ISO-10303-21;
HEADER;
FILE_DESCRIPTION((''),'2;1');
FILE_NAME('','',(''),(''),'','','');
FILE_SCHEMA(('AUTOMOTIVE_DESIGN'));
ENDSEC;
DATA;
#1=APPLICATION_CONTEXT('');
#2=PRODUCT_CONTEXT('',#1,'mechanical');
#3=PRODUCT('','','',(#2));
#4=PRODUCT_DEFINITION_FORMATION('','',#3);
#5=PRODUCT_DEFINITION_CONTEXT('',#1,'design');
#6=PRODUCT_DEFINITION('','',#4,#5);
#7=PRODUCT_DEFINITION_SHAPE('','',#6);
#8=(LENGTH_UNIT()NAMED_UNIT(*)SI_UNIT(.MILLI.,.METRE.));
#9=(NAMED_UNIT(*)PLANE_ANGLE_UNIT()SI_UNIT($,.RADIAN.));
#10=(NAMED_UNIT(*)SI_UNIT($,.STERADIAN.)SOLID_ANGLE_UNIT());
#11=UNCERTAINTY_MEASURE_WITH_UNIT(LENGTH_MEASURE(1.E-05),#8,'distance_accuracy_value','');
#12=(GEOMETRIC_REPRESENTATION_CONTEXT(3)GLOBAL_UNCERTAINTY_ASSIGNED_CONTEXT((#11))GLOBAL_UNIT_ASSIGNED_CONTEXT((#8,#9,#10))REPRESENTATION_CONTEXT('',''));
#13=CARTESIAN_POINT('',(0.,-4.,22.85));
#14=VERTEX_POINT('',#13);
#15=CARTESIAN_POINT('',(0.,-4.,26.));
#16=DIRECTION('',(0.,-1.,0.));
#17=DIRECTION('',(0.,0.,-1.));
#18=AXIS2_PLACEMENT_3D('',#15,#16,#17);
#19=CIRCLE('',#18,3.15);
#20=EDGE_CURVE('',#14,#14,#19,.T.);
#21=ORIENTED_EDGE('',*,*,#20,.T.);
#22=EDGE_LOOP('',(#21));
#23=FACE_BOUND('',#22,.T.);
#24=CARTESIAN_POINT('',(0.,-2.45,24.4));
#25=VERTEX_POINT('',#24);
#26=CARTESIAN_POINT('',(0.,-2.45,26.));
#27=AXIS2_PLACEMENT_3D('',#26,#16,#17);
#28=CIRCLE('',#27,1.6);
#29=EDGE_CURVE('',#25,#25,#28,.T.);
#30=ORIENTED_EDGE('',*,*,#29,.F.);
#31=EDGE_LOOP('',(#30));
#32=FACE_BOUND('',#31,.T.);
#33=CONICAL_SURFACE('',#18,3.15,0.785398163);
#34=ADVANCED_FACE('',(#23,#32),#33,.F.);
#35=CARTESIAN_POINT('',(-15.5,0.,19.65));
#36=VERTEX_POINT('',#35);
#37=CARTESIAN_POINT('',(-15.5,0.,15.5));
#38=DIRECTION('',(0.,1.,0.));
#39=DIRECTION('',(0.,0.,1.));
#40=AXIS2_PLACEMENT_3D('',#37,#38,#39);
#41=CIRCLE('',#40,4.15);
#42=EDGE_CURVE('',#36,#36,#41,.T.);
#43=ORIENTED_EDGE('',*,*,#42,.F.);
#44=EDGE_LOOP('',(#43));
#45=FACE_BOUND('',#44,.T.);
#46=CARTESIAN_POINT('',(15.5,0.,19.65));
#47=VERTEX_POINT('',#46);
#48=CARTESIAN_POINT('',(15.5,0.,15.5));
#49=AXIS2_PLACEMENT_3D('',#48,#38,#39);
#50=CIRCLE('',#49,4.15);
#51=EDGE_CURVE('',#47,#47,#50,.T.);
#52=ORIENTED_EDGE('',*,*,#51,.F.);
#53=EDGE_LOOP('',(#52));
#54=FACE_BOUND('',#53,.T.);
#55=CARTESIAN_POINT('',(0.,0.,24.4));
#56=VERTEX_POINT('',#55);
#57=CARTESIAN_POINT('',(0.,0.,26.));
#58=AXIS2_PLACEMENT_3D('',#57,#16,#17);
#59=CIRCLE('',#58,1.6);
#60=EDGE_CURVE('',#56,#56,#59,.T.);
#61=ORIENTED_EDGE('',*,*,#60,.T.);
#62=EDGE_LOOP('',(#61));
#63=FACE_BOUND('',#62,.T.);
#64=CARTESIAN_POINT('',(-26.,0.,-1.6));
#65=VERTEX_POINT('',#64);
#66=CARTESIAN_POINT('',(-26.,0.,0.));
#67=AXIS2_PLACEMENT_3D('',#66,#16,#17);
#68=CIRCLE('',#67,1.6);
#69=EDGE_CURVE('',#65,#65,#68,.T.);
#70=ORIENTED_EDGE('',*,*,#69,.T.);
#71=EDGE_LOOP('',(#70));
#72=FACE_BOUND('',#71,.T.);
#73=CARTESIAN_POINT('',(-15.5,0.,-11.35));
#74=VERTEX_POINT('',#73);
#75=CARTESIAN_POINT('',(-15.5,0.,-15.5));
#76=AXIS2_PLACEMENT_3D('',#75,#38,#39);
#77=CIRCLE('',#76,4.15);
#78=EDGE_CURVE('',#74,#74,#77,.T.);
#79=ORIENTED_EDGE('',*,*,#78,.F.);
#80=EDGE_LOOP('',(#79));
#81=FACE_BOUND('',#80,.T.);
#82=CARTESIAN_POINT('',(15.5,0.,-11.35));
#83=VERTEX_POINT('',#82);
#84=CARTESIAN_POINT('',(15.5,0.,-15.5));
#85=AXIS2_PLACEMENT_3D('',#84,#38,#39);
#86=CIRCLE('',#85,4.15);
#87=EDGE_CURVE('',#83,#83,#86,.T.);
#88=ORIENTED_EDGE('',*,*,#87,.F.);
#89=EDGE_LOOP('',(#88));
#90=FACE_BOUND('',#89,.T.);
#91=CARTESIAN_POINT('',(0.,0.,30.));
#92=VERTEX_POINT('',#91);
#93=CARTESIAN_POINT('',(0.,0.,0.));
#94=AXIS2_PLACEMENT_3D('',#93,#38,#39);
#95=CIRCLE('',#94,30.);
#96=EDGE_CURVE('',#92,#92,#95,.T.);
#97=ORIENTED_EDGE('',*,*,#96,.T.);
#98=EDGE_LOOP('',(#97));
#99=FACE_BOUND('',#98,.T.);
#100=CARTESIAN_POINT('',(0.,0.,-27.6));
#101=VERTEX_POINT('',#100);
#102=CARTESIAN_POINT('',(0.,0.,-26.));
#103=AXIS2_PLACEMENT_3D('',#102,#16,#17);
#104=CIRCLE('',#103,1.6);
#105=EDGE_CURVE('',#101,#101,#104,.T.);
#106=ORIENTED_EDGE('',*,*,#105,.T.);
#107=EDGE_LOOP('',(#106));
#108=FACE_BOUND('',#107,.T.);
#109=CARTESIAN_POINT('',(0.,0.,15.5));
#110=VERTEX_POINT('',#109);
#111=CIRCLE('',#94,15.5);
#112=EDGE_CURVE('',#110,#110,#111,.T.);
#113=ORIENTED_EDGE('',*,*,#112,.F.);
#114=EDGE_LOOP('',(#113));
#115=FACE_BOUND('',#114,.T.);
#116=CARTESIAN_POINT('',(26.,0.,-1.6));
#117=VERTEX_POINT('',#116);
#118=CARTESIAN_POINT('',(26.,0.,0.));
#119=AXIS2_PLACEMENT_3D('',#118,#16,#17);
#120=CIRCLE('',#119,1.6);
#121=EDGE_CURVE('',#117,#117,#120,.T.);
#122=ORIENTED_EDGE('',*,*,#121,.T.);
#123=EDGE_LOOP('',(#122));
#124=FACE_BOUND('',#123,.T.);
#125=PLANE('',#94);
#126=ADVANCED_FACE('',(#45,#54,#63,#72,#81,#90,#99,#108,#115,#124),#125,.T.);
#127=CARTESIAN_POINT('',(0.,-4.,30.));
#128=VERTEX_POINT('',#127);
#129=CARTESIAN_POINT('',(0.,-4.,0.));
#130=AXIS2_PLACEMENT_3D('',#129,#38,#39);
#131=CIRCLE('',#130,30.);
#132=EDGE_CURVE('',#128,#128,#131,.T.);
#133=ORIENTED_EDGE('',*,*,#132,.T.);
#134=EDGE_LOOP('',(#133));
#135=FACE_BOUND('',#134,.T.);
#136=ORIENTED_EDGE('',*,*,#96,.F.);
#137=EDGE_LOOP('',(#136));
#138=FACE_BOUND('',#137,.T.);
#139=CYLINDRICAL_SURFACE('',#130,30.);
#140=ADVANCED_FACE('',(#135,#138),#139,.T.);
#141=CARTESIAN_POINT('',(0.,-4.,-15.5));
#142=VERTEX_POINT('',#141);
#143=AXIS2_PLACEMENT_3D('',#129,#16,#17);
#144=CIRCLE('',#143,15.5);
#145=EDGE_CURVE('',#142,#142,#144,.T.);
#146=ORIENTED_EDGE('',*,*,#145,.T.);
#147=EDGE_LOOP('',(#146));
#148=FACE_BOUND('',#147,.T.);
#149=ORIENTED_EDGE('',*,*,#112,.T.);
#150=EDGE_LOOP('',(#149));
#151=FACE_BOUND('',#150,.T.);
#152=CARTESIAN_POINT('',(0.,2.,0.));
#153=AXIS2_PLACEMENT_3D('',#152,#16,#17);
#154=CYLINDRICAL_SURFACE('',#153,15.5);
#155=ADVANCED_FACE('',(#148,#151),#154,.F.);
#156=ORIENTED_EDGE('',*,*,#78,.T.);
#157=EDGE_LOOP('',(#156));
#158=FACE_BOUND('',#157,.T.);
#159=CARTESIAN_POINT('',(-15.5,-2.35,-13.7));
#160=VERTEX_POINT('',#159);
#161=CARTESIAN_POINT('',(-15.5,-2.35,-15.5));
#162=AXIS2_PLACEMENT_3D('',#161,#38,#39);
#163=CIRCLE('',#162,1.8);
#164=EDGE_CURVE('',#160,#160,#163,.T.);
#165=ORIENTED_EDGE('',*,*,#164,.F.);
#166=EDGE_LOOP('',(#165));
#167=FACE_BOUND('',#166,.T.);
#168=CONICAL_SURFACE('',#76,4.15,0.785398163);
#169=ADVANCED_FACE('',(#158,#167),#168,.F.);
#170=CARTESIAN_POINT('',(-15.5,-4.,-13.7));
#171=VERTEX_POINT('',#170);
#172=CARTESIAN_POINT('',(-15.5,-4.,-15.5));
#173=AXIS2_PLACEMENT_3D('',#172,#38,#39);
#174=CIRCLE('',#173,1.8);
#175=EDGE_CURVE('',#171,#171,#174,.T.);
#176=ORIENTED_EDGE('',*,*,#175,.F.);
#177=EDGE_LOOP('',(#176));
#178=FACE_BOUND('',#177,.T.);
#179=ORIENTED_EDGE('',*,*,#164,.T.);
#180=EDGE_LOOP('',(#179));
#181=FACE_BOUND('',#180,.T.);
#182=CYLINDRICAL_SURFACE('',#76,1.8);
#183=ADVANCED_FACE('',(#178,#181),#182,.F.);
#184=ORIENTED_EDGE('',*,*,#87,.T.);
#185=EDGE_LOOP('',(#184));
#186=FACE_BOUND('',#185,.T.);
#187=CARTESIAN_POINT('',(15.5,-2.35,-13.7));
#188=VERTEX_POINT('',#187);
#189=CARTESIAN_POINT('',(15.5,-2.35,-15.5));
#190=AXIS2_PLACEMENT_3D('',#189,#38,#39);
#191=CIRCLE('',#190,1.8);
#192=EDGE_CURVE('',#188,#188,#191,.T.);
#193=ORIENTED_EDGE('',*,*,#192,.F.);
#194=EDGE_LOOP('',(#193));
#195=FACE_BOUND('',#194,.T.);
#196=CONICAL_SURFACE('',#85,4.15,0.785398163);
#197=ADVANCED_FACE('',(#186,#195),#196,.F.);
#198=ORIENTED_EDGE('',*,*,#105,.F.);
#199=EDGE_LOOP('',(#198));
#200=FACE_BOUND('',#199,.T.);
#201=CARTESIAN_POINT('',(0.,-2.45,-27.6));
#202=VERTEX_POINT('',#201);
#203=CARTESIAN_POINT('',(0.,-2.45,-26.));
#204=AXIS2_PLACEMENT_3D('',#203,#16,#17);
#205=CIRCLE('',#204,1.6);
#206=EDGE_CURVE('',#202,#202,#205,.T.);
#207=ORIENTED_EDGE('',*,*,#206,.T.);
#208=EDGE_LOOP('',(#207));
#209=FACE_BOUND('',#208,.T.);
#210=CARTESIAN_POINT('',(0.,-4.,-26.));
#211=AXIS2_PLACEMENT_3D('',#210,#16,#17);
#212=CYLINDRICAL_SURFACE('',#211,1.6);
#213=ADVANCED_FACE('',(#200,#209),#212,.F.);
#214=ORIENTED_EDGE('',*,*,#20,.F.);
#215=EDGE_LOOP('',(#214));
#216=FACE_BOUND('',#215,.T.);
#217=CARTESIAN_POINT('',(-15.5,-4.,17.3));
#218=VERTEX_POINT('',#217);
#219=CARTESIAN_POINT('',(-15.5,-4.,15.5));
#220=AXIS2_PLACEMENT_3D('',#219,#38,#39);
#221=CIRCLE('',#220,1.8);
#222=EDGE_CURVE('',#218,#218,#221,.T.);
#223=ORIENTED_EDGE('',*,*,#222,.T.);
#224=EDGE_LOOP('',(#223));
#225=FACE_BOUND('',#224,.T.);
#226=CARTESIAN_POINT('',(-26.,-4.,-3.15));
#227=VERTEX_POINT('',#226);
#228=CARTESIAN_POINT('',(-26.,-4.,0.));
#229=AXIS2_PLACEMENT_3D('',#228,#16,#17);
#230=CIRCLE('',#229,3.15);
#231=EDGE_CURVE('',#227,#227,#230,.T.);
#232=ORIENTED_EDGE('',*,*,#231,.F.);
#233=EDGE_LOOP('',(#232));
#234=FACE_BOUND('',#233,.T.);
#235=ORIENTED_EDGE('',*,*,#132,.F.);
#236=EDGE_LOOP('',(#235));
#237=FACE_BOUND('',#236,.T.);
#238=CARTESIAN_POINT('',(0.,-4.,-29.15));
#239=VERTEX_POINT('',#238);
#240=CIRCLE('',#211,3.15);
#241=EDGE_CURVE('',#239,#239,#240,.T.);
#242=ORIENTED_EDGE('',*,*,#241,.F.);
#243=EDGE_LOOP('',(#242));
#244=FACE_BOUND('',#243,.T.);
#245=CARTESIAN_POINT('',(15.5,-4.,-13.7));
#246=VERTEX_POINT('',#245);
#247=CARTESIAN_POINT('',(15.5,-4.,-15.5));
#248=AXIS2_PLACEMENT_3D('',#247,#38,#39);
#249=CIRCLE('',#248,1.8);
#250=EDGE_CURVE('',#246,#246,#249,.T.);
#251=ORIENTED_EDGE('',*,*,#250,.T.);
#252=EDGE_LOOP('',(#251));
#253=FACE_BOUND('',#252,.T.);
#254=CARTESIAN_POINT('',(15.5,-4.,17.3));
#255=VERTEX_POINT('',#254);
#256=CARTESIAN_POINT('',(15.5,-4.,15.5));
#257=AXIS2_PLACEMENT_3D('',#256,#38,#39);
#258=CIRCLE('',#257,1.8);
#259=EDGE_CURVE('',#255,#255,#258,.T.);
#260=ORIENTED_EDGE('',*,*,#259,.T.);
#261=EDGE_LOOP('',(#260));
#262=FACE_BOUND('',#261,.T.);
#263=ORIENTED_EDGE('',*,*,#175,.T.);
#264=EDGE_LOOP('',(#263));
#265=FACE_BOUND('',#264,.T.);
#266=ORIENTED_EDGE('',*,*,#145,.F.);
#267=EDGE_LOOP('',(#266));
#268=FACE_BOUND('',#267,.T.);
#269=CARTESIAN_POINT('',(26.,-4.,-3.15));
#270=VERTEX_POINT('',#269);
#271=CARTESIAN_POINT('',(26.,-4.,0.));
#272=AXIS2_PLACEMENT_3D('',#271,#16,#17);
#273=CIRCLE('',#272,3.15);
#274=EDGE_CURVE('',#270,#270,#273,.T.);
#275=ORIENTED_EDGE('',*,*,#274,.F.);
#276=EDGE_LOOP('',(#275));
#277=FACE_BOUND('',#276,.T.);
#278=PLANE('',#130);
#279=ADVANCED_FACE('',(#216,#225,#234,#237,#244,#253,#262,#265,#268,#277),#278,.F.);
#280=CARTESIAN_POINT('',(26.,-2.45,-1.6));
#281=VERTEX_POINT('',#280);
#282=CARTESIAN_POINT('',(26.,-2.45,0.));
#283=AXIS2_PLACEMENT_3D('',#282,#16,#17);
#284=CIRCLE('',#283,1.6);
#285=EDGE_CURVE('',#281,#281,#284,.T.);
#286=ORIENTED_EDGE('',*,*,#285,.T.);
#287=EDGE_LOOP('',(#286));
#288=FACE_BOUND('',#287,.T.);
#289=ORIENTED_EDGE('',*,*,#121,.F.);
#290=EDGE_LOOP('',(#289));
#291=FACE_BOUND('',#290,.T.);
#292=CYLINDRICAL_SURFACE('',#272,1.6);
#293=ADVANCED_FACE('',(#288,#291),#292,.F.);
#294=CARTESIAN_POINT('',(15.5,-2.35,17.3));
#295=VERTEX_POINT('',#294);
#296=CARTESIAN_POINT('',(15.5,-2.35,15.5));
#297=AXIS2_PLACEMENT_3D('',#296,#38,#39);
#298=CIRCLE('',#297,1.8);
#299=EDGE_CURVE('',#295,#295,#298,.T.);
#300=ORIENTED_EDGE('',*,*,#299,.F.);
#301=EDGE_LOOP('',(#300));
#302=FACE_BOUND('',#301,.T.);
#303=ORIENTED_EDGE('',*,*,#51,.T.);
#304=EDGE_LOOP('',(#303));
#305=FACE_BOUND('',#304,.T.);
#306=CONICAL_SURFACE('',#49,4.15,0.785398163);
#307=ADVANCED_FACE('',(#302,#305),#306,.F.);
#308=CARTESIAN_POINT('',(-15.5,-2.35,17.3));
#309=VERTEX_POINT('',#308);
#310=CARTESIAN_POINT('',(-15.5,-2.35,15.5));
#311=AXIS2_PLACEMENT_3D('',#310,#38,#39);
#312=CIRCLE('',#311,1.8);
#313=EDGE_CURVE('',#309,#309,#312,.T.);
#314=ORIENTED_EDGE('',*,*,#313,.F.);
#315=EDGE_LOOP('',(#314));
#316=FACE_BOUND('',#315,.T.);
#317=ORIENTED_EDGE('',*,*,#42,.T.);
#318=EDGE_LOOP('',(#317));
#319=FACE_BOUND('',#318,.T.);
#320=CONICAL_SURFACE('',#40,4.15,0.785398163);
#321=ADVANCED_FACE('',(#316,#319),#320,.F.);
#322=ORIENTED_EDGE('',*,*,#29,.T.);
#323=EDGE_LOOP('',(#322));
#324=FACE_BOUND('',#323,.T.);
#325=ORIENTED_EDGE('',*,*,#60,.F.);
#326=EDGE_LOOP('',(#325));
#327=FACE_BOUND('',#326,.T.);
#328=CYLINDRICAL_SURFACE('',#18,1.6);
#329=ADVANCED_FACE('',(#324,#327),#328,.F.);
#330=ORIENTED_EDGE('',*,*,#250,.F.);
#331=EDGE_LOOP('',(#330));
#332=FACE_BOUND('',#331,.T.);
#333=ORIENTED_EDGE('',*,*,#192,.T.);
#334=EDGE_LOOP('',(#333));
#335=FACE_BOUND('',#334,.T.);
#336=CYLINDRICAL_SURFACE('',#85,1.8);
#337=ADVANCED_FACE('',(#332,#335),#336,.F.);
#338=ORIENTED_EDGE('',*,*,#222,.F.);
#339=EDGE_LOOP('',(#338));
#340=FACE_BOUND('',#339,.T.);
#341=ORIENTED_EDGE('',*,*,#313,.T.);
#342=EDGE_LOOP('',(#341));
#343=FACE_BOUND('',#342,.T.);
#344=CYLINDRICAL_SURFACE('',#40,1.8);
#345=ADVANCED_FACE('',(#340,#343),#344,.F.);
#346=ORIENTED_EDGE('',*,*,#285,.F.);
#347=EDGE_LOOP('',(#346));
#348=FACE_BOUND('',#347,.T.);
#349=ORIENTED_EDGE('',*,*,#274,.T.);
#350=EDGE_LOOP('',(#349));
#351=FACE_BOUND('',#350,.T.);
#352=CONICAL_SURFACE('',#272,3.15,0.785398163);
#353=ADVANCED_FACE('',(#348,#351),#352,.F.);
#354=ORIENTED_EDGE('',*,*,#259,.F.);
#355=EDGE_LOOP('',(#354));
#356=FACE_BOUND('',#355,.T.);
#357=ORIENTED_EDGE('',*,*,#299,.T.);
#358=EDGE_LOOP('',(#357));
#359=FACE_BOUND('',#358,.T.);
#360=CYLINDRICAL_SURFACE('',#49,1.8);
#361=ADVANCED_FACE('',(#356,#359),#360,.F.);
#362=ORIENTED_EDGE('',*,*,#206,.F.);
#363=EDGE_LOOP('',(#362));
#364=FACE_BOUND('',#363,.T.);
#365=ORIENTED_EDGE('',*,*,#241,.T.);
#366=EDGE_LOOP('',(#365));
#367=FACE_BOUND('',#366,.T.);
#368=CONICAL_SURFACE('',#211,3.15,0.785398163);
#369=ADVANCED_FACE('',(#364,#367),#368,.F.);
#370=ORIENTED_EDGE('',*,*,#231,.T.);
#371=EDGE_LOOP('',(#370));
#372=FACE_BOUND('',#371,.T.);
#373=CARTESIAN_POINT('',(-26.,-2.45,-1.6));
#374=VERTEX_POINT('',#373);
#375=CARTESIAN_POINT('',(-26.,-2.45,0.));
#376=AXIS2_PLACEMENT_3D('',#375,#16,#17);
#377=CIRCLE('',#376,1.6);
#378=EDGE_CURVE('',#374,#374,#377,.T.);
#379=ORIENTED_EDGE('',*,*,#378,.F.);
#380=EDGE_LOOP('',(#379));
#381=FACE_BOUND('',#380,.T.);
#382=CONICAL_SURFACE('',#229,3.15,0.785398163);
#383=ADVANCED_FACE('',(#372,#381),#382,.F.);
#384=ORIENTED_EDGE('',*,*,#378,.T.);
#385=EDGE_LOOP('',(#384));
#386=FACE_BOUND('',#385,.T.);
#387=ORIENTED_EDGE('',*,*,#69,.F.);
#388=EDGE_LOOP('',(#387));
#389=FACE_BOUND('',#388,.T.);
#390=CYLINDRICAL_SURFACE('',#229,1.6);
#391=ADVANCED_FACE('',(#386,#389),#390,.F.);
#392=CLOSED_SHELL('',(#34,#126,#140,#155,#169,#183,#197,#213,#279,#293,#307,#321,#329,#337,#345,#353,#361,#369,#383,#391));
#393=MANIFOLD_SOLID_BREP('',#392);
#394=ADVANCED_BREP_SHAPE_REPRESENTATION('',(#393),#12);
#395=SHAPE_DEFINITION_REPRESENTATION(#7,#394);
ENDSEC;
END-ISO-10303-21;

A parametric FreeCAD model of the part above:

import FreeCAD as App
import Part
import Sketcher
from FreeCAD import Vector
Q = App.Units.Quantity

doc = App.newDocument("Part")
body = doc.addObject("PartDesign::Body", "Body")

# Sketch on XZ plane
sketch1 = doc.addObject("Sketcher::SketchObject", "Sketch")
body.addObject(sketch1)
sketch1.AttachmentSupport = (doc.XZ_Plane, [""])
sketch1.MapMode = "FlatFace"
sketch1.addGeometry(Part.Circle(Vector(0, 0, 0), Vector(0, 0, 1), 30), False)
sketch1.addConstraint(Sketcher.Constraint("Coincident", 0, 3, -1, 1))
sketch1.addConstraint(Sketcher.Constraint("Diameter", 0, Q("60 mm")))
pad1 = doc.addObject("PartDesign::Pad", "Pad")
body.addObject(pad1)
pad1.Profile = sketch1
pad1.Length = 4

# Sketch on XZ plane
sketch2 = doc.addObject("Sketcher::SketchObject", "Sketch001")
body.addObject(sketch2)
sketch2.AttachmentSupport = (doc.XZ_Plane, [""])
sketch2.MapMode = "FlatFace"
sketch2.AttachmentOffset = App.Placement(Vector(0, 0, 4), App.Rotation())
sketch2.addGeometry(Part.Circle(Vector(0, 0, 0), Vector(0, 0, 1), 16), False)
sketch2.addConstraint(Sketcher.Constraint("Coincident", 0, 3, -1, 1))
sketch2.addConstraint(Sketcher.Constraint("Diameter", 0, Q("31 mm")))
pocket1 = doc.addObject("PartDesign::Pocket", "Pocket")
body.addObject(pocket1)
pocket1.Profile = sketch2
pocket1.Length = 6

# Sketch on YZ plane
sketch3 = doc.addObject("Sketcher::SketchObject", "Sketch002")
body.addObject(sketch3)
sketch3.AttachmentSupport = (doc.YZ_Plane, [""])
sketch3.MapMode = "FlatFace"
sketch3.AttachmentOffset = App.Placement(Vector(0, 0, 15.5), App.Rotation())
sketch3.addGeometry(Part.LineSegment(Vector(-4, 15.5, 0), Vector(0, 15.5, 0)), False)
sketch3.addGeometry(Part.LineSegment(Vector(0, 15.5, 0), Vector(0, 19.6, 0)), False)
sketch3.addGeometry(Part.LineSegment(Vector(0, 19.6, 0), Vector(-2.4, 17.3, 0)), False)
sketch3.addGeometry(Part.LineSegment(Vector(-2.4, 17.3, 0), Vector(-4, 17.3, 0)), False)
sketch3.addGeometry(Part.LineSegment(Vector(-4, 17.3, 0), Vector(-4, 15.5, 0)), False)
sketch3.addGeometry(Part.LineSegment(Vector(0, 15.5, 0), Vector(-4, 15.5, 0)), True)  # axis
sketch3.addConstraint(Sketcher.Constraint("Coincident", 0, 2, 1, 1))
sketch3.addConstraint(Sketcher.Constraint("Coincident", 1, 2, 2, 1))
sketch3.addConstraint(Sketcher.Constraint("Coincident", 2, 2, 3, 1))
sketch3.addConstraint(Sketcher.Constraint("Coincident", 3, 2, 4, 1))
sketch3.addConstraint(Sketcher.Constraint("Coincident", 4, 2, 0, 1))
sketch3.addConstraint(Sketcher.Constraint("Horizontal", 0))
sketch3.addConstraint(Sketcher.Constraint("Vertical", 1))
sketch3.addConstraint(Sketcher.Constraint("Horizontal", 3))
sketch3.addConstraint(Sketcher.Constraint("Vertical", 4))
sketch3.addConstraint(Sketcher.Constraint("Horizontal", 5))
sketch3.addConstraint(Sketcher.Constraint("Coincident", 5, 1, 0, 2))
sketch3.addConstraint(Sketcher.Constraint("PointOnObject", 0, 2, -2))
sketch3.addConstraint(Sketcher.Constraint("Vertical", 3, 2, 5, 2))
sketch3.addConstraint(Sketcher.Constraint("DistanceX", 0, 1, 0, 2, Q("4 mm")))
sketch3.addConstraint(Sketcher.Constraint("Angle", 2, Q("-135 deg")))
sketch3.addConstraint(Sketcher.Constraint("DistanceY", 4, 2, 4, 1, Q("1.8 mm")))
sketch3.addConstraint(Sketcher.Constraint("DistanceX", 3, 2, 3, 1, Q("1.65 mm")))
sketch3.addConstraint(Sketcher.Constraint("DistanceY", -1, 1, 0, 2, Q("15.5 mm")))
groove = doc.addObject("PartDesign::Groove", "Groove")
body.addObject(groove)
groove.Profile = sketch3
groove.ReferenceAxis = (sketch3, ["Axis0"])
groove.Angle = 360
doc.recompute()

linearpattern = doc.addObject("PartDesign::LinearPattern", "LinearPattern")
body.addObject(linearpattern)
linearpattern.Originals = [groove]
linearpattern.Direction = (doc.Z_Axis, [""])
linearpattern.Mode = "offset"
linearpattern.Offset = 31
linearpattern.Occurrences = 2
linearpattern.Reversed = True
body.Tip = linearpattern
doc.recompute()

datumline = doc.addObject("PartDesign::Line", "DatumLine")
body.addObject(datumline)
datumline.Placement = App.Placement(Vector(0, 0, 0), App.Rotation(Vector(0, 0, 1), Vector(-0.707106781, 0, -0.707106781)))
linearpattern2 = doc.addObject("PartDesign::LinearPattern", "LinearPattern001")
body.addObject(linearpattern2)
linearpattern2.Originals = [groove]
linearpattern2.Direction = (datumline, [""])
linearpattern2.Mode = "offset"
linearpattern2.Offset = 43.84062
linearpattern2.Occurrences = 2
body.Tip = linearpattern2
doc.recompute()

linearpattern3 = doc.addObject("PartDesign::LinearPattern", "LinearPattern002")
body.addObject(linearpattern3)
linearpattern3.Originals = [groove]
linearpattern3.Direction = (doc.X_Axis, [""])
linearpattern3.Mode = "offset"
linearpattern3.Offset = 31
linearpattern3.Occurrences = 2
linearpattern3.Reversed = True
body.Tip = linearpattern3

# Sketch on XZ plane
sketch4 = doc.addObject("Sketcher::SketchObject", "Sketch003")
body.addObject(sketch4)
sketch4.AttachmentSupport = (doc.XZ_Plane, [""])
sketch4.MapMode = "FlatFace"
sketch4.AttachmentOffset = App.Placement(Vector(0, 0, 4), App.Rotation())
sketch4.addGeometry(Part.Circle(Vector(0, 26, 0), Vector(0, 0, 1), 1.6), False)
sketch4.addGeometry(Part.Circle(Vector(26, 0, 0), Vector(0, 0, 1), 1.6), False)
sketch4.addGeometry(Part.Circle(Vector(0, -26, 0), Vector(0, 0, 1), 1.6), False)
sketch4.addGeometry(Part.Circle(Vector(-26, 0, 0), Vector(0, 0, 1), 1.6), False)
sketch4.addConstraint(Sketcher.Constraint("Equal", 0, 1))
sketch4.addConstraint(Sketcher.Constraint("Equal", 1, 2))
sketch4.addConstraint(Sketcher.Constraint("Equal", 2, 3))
sketch4.addConstraint(Sketcher.Constraint("Symmetric", 0, 3, 2, 3, -1, 1))
sketch4.addConstraint(Sketcher.Constraint("Symmetric", 1, 3, 3, 3, -1, 1))
sketch4.addConstraint(Sketcher.Constraint("PointOnObject", 0, 3, -2))
sketch4.addConstraint(Sketcher.Constraint("PointOnObject", 1, 3, -1))
sketch4.addConstraint(Sketcher.Constraint("Diameter", 0, Q("3.2 mm")))
sketch4.addConstraint(Sketcher.Constraint("DistanceY", -1, 1, 0, 3, Q("26 mm")))
sketch4.addConstraint(Sketcher.Constraint("DistanceX", -1, 1, 1, 3, Q("26 mm")))
doc.recompute()
hole = doc.addObject("PartDesign::Hole", "Hole")
body.addObject(hole)
hole.Profile = sketch4
hole.ThreadType = "None"
hole.Diameter = 3.2
hole.DepthType = "ThroughAll"
hole.HoleCutType = "Countersink"
hole.HoleCutDiameter = 6.3
hole.HoleCutCountersinkAngle = 90

doc.recompute()
